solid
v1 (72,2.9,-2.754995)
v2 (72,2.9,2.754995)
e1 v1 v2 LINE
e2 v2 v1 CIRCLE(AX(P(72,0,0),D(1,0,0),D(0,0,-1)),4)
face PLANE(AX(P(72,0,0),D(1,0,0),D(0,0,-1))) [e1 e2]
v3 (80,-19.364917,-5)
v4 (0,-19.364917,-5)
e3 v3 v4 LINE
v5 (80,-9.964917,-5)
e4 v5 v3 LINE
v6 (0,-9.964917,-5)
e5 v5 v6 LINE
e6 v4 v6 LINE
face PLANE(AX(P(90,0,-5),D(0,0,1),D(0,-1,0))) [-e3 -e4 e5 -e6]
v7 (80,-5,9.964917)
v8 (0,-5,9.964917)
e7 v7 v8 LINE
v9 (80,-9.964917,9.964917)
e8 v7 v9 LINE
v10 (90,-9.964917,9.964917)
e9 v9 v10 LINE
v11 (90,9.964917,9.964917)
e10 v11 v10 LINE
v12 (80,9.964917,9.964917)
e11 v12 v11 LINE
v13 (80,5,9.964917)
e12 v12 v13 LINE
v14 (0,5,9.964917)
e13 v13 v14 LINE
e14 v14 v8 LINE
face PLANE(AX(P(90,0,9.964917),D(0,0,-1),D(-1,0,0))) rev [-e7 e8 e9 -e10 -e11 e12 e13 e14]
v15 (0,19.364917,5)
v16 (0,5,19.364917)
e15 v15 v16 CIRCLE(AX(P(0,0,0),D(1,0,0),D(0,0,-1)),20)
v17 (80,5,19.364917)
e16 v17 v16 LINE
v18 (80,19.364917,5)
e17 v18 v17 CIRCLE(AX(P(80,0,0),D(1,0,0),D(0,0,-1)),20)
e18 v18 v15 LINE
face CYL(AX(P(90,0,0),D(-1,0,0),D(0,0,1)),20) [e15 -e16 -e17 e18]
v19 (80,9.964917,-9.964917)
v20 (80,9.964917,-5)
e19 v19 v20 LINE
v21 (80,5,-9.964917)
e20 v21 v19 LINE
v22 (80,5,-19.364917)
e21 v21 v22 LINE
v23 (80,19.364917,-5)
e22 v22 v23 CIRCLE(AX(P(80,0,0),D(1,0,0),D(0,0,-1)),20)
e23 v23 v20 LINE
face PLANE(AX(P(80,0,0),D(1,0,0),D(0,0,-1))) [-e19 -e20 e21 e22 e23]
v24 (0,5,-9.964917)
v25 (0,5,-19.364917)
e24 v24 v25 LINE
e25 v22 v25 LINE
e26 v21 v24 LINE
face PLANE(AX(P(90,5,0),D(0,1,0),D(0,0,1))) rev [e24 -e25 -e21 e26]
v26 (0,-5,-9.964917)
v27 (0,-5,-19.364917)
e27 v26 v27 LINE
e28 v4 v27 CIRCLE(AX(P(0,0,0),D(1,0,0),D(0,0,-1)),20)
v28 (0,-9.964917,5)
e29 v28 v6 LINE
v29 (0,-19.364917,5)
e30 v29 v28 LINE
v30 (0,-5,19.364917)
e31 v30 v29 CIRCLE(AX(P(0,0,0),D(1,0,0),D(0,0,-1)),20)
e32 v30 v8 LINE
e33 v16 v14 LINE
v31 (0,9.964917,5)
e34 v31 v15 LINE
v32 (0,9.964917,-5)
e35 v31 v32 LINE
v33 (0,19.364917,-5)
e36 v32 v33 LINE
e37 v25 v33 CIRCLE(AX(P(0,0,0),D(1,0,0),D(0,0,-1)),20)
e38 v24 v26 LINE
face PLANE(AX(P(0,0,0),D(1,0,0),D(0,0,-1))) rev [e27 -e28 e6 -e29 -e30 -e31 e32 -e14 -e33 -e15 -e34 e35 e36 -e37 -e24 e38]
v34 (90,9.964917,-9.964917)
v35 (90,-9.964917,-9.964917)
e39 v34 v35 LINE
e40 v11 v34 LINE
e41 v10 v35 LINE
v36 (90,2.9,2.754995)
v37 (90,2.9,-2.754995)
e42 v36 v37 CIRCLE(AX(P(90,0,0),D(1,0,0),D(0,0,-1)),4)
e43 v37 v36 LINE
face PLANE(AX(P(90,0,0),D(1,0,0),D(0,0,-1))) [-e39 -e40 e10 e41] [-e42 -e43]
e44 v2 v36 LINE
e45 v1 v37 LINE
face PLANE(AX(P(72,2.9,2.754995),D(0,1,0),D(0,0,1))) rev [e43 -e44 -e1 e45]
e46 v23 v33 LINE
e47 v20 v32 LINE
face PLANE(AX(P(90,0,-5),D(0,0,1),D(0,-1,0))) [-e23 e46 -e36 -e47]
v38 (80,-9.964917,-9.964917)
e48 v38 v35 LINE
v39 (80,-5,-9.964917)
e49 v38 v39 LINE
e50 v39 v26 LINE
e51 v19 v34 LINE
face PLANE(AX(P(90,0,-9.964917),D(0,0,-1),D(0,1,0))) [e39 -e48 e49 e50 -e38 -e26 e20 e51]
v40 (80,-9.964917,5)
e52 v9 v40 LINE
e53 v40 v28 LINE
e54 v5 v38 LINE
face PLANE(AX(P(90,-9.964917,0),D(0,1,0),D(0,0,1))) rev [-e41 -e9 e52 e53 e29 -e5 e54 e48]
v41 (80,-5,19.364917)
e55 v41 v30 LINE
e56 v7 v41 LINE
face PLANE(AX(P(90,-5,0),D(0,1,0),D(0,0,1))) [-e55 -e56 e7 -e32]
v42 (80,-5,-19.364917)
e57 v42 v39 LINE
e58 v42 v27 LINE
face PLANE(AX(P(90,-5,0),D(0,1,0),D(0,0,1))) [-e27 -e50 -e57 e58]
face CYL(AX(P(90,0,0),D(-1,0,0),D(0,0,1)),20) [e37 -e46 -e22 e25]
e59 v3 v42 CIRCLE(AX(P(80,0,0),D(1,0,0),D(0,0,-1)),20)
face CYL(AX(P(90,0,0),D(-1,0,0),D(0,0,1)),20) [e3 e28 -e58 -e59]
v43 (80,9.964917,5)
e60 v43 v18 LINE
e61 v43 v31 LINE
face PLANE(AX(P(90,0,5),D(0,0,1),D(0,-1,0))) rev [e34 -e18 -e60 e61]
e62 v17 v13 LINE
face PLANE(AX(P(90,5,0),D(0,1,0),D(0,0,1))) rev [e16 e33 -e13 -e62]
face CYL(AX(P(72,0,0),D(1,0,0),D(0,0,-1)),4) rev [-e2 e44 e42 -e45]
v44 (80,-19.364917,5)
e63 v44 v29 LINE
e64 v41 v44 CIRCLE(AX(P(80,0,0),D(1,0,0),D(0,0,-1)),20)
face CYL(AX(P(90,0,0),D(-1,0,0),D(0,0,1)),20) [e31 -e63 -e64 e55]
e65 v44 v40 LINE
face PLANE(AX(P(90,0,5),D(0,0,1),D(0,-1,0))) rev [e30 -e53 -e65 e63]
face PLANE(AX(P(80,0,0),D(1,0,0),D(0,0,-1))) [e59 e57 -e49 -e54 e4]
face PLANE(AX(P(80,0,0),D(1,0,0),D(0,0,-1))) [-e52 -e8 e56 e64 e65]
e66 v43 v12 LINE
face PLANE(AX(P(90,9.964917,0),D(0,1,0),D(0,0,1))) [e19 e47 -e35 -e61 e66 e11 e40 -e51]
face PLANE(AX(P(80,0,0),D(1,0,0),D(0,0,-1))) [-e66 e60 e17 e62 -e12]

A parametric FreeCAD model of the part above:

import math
import FreeCAD as App
import Part
import Sketcher

V = App.Vector

doc = App.newDocument("Part")
body = doc.addObject("PartDesign::Body", "Body")

sketch1 = body.newObject("Sketcher::SketchObject", "Sketch")
sketch1.AttachmentSupport = (doc.getObject("YZ_Plane"), [""])
sketch1.MapMode = "FlatFace"
sketch1.addGeometry([
    Part.ArcOfCircle(Part.Circle(V(0, 0, 0), V(0, 0, 1), 20), math.radians(104.477512), math.radians(165.522488)),
    Part.LineSegment(V(-19.364917, 5, 0), V(-9.964917, 5, 0)),
    Part.LineSegment(V(-9.964917, 5, 0), V(-9.964917, -5, 0)),
    Part.LineSegment(V(-9.964917, -5, 0), V(-19.364917, -5, 0)),
    Part.ArcOfCircle(Part.Circle(V(0, 0, 0), V(0, 0, 1), 20), math.radians(-165.522488), math.radians(-104.477512)),
    Part.LineSegment(V(-5, -19.364917, 0), V(-5, -9.964917, 0)),
    Part.LineSegment(V(-5, -9.964917, 0), V(5, -9.964917, 0)),
    Part.LineSegment(V(5, -9.964917, 0), V(5, -19.364917, 0)),
    Part.ArcOfCircle(Part.Circle(V(0, 0, 0), V(0, 0, 1), 20), math.radians(-75.522488), math.radians(-14.477512)),
    Part.LineSegment(V(19.364917, -5, 0), V(9.964917, -5, 0)),
    Part.LineSegment(V(9.964917, -5, 0), V(9.964917, 5, 0)),
    Part.LineSegment(V(9.964917, 5, 0), V(19.364917, 5, 0)),
    Part.ArcOfCircle(Part.Circle(V(0, 0, 0), V(0, 0, 1), 20), math.radians(14.477512), math.radians(75.522488)),
    Part.LineSegment(V(5, 19.364917, 0), V(5, 9.964917, 0)),
    Part.LineSegment(V(5, 9.964917, 0), V(-5, 9.964917, 0)),
    Part.LineSegment(V(-5, 9.964917, 0), V(-5, 19.364917, 0)),
], False)
sketch1.addConstraint([
    Sketcher.Constraint("Coincident", 0, 2, 1, 1),
    Sketcher.Constraint("Coincident", 1, 2, 2, 1),
    Sketcher.Constraint("Coincident", 2, 2, 3, 1),
    Sketcher.Constraint("Coincident", 3, 2, 4, 1),
    Sketcher.Constraint("Coincident", 4, 2, 5, 1),
    Sketcher.Constraint("Coincident", 5, 2, 6, 1),
    Sketcher.Constraint("Coincident", 6, 2, 7, 1),
    Sketcher.Constraint("Coincident", 7, 2, 8, 1),
    Sketcher.Constraint("Coincident", 8, 2, 9, 1),
    Sketcher.Constraint("Coincident", 9, 2, 10, 1),
    Sketcher.Constraint("Coincident", 10, 2, 11, 1),
    Sketcher.Constraint("Coincident", 11, 2, 12, 1),
    Sketcher.Constraint("Coincident", 12, 2, 13, 1),
    Sketcher.Constraint("Coincident", 13, 2, 14, 1),
    Sketcher.Constraint("Coincident", 14, 2, 15, 1),
    Sketcher.Constraint("Coincident", 15, 2, 0, 1),
    Sketcher.Constraint("Horizontal", 1),
    Sketcher.Constraint("Vertical", 2),
    Sketcher.Constraint("Horizontal", 3),
    Sketcher.Constraint("Vertical", 5),
    Sketcher.Constraint("Horizontal", 6),
    Sketcher.Constraint("Vertical", 7),
    Sketcher.Constraint("Horizontal", 9),
    Sketcher.Constraint("Vertical", 10),
    Sketcher.Constraint("Horizontal", 11),
    Sketcher.Constraint("Vertical", 13),
    Sketcher.Constraint("Horizontal", 14),
    Sketcher.Constraint("Vertical", 15),
    Sketcher.Constraint("Coincident", 0, 3, -1, 1),
    Sketcher.Constraint("Coincident", 4, 3, -1, 1),
    Sketcher.Constraint("Coincident", 8, 3, -1, 1),
    Sketcher.Constraint("Coincident", 12, 3, -1, 1),
    Sketcher.Constraint("Equal", 0, 4),
    Sketcher.Constraint("Equal", 4, 8),
    Sketcher.Constraint("Equal", 8, 12),
    Sketcher.Constraint("Symmetric", 1, 2, 9, 2, -1, 1),
    Sketcher.Constraint("Symmetric", 5, 2, 13, 2, -1, 1),
    Sketcher.Constraint("Horizontal", 4, 2, 7, 2),
    Sketcher.Constraint("Horizontal", 3, 2, 8, 2),
    Sketcher.Constraint("Horizontal", 1, 2, 10, 2),
    Sketcher.Constraint("Horizontal", 12, 2, 15, 2),
    Sketcher.Constraint("Equal", 14, 2),
    Sketcher.Constraint("Equal", 11, 5),
    Sketcher.Constraint("Radius", 0, 20.0),
    Sketcher.Constraint("DistanceX", 6, 1, 6, 2, 10.0),
    Sketcher.Constraint("DistanceX", 1, 1, 1, 2, 9.4),
])
pad1 = body.newObject("PartDesign::Pad", "Pad")
pad1.Profile = sketch1
pad1.Length = 90

sketch2 = body.newObject("Sketcher::SketchObject", "Sketch001")
sketch2.AttachmentSupport = (doc.getObject("YZ_Plane"), [""])
sketch2.MapMode = "FlatFace"
sketch2.AttachmentOffset = App.Placement(V(0, 0, 90), App.Rotation())
sketch2.addGeometry([
    Part.LineSegment(V(2.9, -2.754995, 0), V(2.9, 2.754995, 0)),
    Part.ArcOfCircle(Part.Circle(V(0, 0, 0), V(0, 0, 1), 4), math.radians(43.531152), math.radians(316.468848)),
], False)
sketch2.addConstraint([
    Sketcher.Constraint("Coincident", 0, 1, 1, 2),
    Sketcher.Constraint("Coincident", 1, 1, 0, 2),
    Sketcher.Constraint("Vertical", 0),
    Sketcher.Constraint("Coincident", 1, 3, -1, 1),
    Sketcher.Constraint("Radius", 1, 4.0),
    Sketcher.Constraint("DistanceX", -1, 1, 0, 1, 2.9),
])
pocket1 = body.newObject("PartDesign::Pocket", "Pocket")
pocket1.Profile = sketch2
pocket1.Length = 18

sketch3 = body.newObject("Sketcher::SketchObject", "Sketch002")
sketch3.AttachmentSupport = (doc.getObject("YZ_Plane"), [""])
sketch3.MapMode = "FlatFace"
sketch3.AttachmentOffset = App.Placement(V(0, 0, 90), App.Rotation())
sketch3.addGeometry([
    Part.LineSegment(V(5, 9.964917, 0), V(9.964917, 9.964917, 0)),
    Part.LineSegment(V(9.964917, 9.964917, 0), V(9.964917, 5, 0)),
    Part.LineSegment(V(9.964917, 5, 0), V(19.364917, 5, 0)),
    Part.ArcOfCircle(Part.Circle(V(0, 0, 0), V(0, 0, 1), 20), math.radians(14.477512), math.radians(75.522488)),
    Part.LineSegment(V(5, 19.364917, 0), V(5, 9.964917, 0)),
    Part.LineSegment(V(9.964917, -5, 0), V(9.964917, -9.964917, 0)),
    Part.LineSegment(V(9.964917, -9.964917, 0), V(5, -9.964917, 0)),
    Part.LineSegment(V(5, -9.964917, 0), V(5, -19.364917, 0)),
    Part.ArcOfCircle(Part.Circle(V(0, 0, 0), V(0, 0, 1), 20), math.radians(-75.522488), math.radians(-14.477512)),
    Part.LineSegment(V(19.364917, -5, 0), V(9.964917, -5, 0)),
    Part.LineSegment(V(-5, -9.964917, 0), V(-9.964917, -9.964917, 0)),
    Part.LineSegment(V(-9.964917, -9.964917, 0), V(-9.964917, -5, 0)),
    Part.LineSegment(V(-9.964917, -5, 0), V(-19.364917, -5, 0)),
    Part.ArcOfCircle(Part.Circle(V(0, 0, 0), V(0, 0, 1), 20), math.radians(-165.522488), math.radians(-104.477512)),
    Part.LineSegment(V(-5, -19.364917, 0), V(-5, -9.964917, 0)),
    Part.LineSegment(V(-9.964917, 5, 0), V(-9.964917, 9.964917, 0)),
    Part.LineSegment(V(-9.964917, 9.964917, 0), V(-5, 9.964917, 0)),
    Part.LineSegment(V(-5, 9.964917, 0), V(-5, 19.364917, 0)),
    Part.ArcOfCircle(Part.Circle(V(0, 0, 0), V(0, 0, 1), 20), math.radians(104.477512), math.radians(165.522488)),
    Part.LineSegment(V(-19.364917, 5, 0), V(-9.964917, 5, 0)),
], False)
sketch3.addConstraint([
    Sketcher.Constraint("Coincident", 0, 2, 1, 1),
    Sketcher.Constraint("Coincident", 1, 2, 2, 1),
    Sketcher.Constraint("Coincident", 2, 2, 3, 1),
    Sketcher.Constraint("Coincident", 3, 2, 4, 1),
    Sketcher.Constraint("Coincident", 4, 2, 0, 1),
    Sketcher.Constraint("Coincident", 5, 2, 6, 1),
    Sketcher.Constraint("Coincident", 6, 2, 7, 1),
    Sketcher.Constraint("Coincident", 7, 2, 8, 1),
    Sketcher.Constraint("Coincident", 8, 2, 9, 1),
    Sketcher.Constraint("Coincident", 9, 2, 5, 1),
    Sketcher.Constraint("Coincident", 10, 2, 11, 1),
    Sketcher.Constraint("Coincident", 11, 2, 12, 1),
    Sketcher.Constraint("Coincident", 12, 2, 13, 1),
    Sketcher.Constraint("Coincident", 13, 2, 14, 1),
    Sketcher.Constraint("Coincident", 14, 2, 10, 1),
    Sketcher.Constraint("Coincident", 15, 2, 16, 1),
    Sketcher.Constraint("Coincident", 16, 2, 17, 1),
    Sketcher.Constraint("Coincident", 17, 2, 18, 1),
    Sketcher.Constraint("Coincident", 18, 2, 19, 1),
    Sketcher.Constraint("Coincident", 19, 2, 15, 1),
    Sketcher.Constraint("Horizontal", 0),
    Sketcher.Constraint("Vertical", 1),
    Sketcher.Constraint("Horizontal", 2),
    Sketcher.Constraint("Vertical", 4),
    Sketcher.Constraint("Vertical", 5),
    Sketcher.Constraint("Horizontal", 6),
    Sketcher.Constraint("Vertical", 7),
    Sketcher.Constraint("Horizontal", 9),
    Sketcher.Constraint("Horizontal", 10),
    Sketcher.Constraint("Vertical", 11),
    Sketcher.Constraint("Horizontal", 12),
    Sketcher.Constraint("Vertical", 14),
    Sketcher.Constraint("Vertical", 15),
    Sketcher.Constraint("Horizontal", 16),
    Sketcher.Constraint("Vertical", 17),
    Sketcher.Constraint("Horizontal", 19),
    Sketcher.Constraint("Coincident", 3, 3, -1, 1),
    Sketcher.Constraint("Coincident", 8, 3, -1, 1),
    Sketcher.Constraint("Coincident", 13, 3, -1, 1),
    Sketcher.Constraint("Coincident", 18, 3, -1, 1),
    Sketcher.Constraint("Equal", 3, 8),
    Sketcher.Constraint("Equal", 8, 13),
    Sketcher.Constraint("Equal", 13, 18),
    Sketcher.Constraint("Symmetric", 0, 2, 10, 2, -1, 1),
    Sketcher.Constraint("Symmetric", 5, 2, 15, 2, -1, 1),
    Sketcher.Constraint("Symmetric", 5, 2, 10, 2, -2),
    Sketcher.Constraint("Horizontal", 9, 2, 11, 2),
    Sketcher.Constraint("Horizontal", 7, 2, 13, 2),
    Sketcher.Constraint("Horizontal", 3, 2, 17, 2),
    Sketcher.Constraint("Horizontal", 2, 2, 18, 2),
    Sketcher.Constraint("Vertical", 4, 2, 6, 2),
    Sketcher.Constraint("Vertical", 2, 2, 8, 2),
    Sketcher.Constraint("Equal", 16, 1),
    Sketcher.Constraint("Equal", 19, 4),
    Sketcher.Constraint("Radius", 3, 20.0),
    Sketcher.Constraint("DistanceX", 2, 1, 2, 2, 9.4),
    Sketcher.Constraint("DistanceY", -1, 1, 1, 2, 5.0),
])
pocket2 = body.newObject("PartDesign::Pocket", "Pocket001")
pocket2.Profile = sketch3
pocket2.Length = 10

doc.recompute()
